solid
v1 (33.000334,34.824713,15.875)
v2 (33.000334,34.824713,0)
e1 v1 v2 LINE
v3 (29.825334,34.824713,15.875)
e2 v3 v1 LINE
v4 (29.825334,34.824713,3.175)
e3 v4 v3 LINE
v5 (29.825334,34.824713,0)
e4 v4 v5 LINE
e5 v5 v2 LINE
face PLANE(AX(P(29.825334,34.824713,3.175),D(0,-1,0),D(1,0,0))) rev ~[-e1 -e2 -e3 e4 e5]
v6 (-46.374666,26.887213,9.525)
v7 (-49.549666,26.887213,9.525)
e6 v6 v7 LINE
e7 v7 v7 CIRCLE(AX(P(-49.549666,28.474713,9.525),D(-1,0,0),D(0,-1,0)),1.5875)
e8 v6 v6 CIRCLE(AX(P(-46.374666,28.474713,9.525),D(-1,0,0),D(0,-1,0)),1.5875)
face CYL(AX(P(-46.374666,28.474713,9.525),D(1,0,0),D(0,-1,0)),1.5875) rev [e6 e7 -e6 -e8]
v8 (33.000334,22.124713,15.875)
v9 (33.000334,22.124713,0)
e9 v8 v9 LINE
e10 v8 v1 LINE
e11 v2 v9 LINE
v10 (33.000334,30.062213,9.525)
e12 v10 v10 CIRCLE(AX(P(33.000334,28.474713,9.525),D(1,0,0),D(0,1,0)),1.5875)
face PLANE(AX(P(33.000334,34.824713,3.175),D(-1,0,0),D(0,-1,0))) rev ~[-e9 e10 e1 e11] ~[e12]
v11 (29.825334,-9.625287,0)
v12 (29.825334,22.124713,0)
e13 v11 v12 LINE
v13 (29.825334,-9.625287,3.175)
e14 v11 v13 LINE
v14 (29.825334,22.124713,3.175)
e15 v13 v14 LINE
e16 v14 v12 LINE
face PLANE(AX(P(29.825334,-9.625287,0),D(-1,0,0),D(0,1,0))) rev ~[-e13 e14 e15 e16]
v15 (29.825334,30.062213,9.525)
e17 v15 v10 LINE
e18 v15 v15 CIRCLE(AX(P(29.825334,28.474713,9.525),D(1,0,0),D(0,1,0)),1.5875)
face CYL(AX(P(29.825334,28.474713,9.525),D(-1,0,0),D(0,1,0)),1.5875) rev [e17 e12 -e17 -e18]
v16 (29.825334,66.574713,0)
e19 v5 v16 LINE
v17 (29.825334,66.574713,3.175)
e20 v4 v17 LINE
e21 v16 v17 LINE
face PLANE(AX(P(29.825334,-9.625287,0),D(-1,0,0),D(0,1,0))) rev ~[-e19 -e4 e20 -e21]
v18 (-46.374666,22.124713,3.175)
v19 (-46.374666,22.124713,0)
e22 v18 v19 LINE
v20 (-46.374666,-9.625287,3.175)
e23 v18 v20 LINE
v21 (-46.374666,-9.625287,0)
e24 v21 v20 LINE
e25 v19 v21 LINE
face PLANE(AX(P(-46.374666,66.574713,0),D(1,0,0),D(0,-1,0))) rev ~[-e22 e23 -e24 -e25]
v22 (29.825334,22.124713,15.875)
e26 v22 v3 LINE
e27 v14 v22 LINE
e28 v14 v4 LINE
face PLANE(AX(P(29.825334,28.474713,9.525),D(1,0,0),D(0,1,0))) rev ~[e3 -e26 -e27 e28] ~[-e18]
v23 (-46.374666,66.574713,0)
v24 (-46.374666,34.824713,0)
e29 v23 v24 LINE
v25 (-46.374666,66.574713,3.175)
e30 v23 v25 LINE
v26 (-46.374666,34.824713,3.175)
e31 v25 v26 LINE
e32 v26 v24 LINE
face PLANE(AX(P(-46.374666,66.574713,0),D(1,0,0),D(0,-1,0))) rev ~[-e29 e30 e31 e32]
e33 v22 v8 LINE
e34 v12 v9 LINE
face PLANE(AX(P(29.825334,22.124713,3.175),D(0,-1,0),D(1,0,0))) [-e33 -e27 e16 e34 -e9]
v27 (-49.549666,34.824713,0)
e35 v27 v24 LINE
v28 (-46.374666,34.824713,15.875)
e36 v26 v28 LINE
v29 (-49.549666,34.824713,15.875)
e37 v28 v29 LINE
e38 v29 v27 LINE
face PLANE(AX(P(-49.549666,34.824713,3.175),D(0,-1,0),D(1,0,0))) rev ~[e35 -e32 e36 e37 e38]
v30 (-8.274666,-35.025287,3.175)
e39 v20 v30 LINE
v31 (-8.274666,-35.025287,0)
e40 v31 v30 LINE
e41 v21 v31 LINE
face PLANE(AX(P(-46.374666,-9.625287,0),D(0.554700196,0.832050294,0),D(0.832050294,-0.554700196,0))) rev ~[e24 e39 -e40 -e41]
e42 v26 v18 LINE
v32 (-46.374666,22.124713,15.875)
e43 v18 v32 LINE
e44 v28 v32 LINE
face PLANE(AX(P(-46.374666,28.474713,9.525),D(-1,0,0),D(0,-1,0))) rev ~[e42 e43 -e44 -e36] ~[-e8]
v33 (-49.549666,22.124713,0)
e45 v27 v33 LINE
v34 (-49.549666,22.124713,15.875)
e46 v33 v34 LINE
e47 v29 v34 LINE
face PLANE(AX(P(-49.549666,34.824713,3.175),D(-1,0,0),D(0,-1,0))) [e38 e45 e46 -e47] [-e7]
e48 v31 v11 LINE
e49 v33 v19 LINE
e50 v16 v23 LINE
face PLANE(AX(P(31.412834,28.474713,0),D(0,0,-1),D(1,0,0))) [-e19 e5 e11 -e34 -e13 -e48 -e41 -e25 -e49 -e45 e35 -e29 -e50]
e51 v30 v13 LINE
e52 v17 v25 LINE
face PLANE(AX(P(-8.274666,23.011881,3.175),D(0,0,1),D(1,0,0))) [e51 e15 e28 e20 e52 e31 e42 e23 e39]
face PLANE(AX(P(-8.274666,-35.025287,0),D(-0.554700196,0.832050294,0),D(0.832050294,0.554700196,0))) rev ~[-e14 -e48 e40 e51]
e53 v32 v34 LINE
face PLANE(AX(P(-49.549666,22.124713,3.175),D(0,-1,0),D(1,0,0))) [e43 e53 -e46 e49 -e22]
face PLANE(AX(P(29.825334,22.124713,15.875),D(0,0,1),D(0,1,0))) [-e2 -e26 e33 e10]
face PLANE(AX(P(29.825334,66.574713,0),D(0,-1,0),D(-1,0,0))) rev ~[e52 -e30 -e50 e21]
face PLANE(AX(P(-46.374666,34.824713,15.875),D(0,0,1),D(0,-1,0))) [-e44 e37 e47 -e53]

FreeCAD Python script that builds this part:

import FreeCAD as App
import Part
import Sketcher

V = App.Vector
Q = App.Units.Quantity


def add_polygon(sketch, points):
    """Adds a closed chain of lines whose ends are joined by coincident constraints."""
    first, n = sketch.GeometryCount, len(points)
    for a, b in zip(points, points[1:] + points[:1]):
        sketch.addGeometry(Part.LineSegment(App.Vector(*a, 0), App.Vector(*b, 0)), False)
    for i in range(n):
        sketch.addConstraint(Sketcher.Constraint("Coincident", first + i, 2, first + (i + 1) % n, 1))

doc = App.newDocument("Part")
body = doc.addObject("PartDesign::Body", "Body")

sketch1 = body.newObject("Sketcher::SketchObject", "Sketch")
sketch1.AttachmentSupport = (doc.getObject("XY_Plane"), [""])
sketch1.MapMode = "FlatFace"
add_polygon(sketch1, [(30, 67), (-46, 67), (-46, -10), (-8, -35), (30, -10)])
sketch1.addConstraint(Sketcher.Constraint("Horizontal", 0))
sketch1.addConstraint(Sketcher.Constraint("Vertical", 1))
sketch1.addConstraint(Sketcher.Constraint("Vertical", 4))
sketch1.addConstraint(Sketcher.Constraint("Horizontal", 1, 2, 3, 2))
sketch1.addConstraint(Sketcher.Constraint("Equal", 0, 1))
sketch1.addConstraint(Sketcher.Constraint("Equal", 2, 3))
sketch1.addConstraint(Sketcher.Constraint("DistanceX", 0, 2, 0, 1, Q("3 in")))
sketch1.addConstraint(Sketcher.Constraint("DistanceY", 2, 2, 1, 2, Q("1 in")))
sketch1.addConstraint(Sketcher.Constraint("DistanceX", 0, 2, -1, 1, 46.374666))
sketch1.addConstraint(Sketcher.Constraint("DistanceY", -1, 1, 0, 2, 66.574713))
pad1 = body.newObject("PartDesign::Pad", "Pad")
pad1.Profile = sketch1
pad1.Length = Q("0.125 in")
body2 = doc.addObject("PartDesign::Body", "Body001")

sketch2 = body2.newObject("Sketcher::SketchObject", "Sketch001")
sketch2.AttachmentSupport = (doc.getObject("YZ_Plane001"), [""])
sketch2.MapMode = "FlatFace"
sketch2.AttachmentOffset = App.Placement(V(0, 0, -46.374666), App.Rotation())
add_polygon(sketch2, [(34.8, 15.9), (34.8, 3.2), (22.1, 3.2), (22.1, 15.9)])
sketch2.addGeometry(Part.Circle(V(28.5, 9.5, 0), V(0, 0, 1), 1.6), False)
sketch2.addConstraint(Sketcher.Constraint("Vertical", 0))
sketch2.addConstraint(Sketcher.Constraint("Horizontal", 1))
sketch2.addConstraint(Sketcher.Constraint("Vertical", 2))
sketch2.addConstraint(Sketcher.Constraint("Horizontal", 3))
sketch2.addConstraint(Sketcher.Constraint("Equal", 3, 0))
sketch2.addConstraint(Sketcher.Constraint("Diameter", 4, Q("0.125 in")))
sketch2.addConstraint(Sketcher.Constraint("DistanceX", 1, 2, 1, 1, Q("0.5 in")))
sketch2.addConstraint(Sketcher.Constraint("DistanceX", 4, 3, 0, 2, Q("0.25 in")))
sketch2.addConstraint(Sketcher.Constraint("DistanceY", 0, 2, 4, 3, Q("0.25 in")))
sketch2.addConstraint(Sketcher.Constraint("DistanceY", -1, 1, 4, 3, Q("0.375 in")))
sketch2.addConstraint(Sketcher.Constraint("DistanceX", -1, 1, 4, 3, 28.474713))
pad2 = body2.newObject("PartDesign::Pad", "Pad001")
pad2.Profile = sketch2
pad2.Length = Q("0.125 in")
pad2.Reversed = True
body.AllowCompound = True
doc.recompute()

boolean = body.newObject("PartDesign::Boolean", "Boolean")
boolean.Type = "Fuse"
boolean.addObjects([body2])

sketch3 = body.newObject("Sketcher::SketchObject", "Sketch002")
sketch3.AttachmentSupport = (doc.getObject("XY_Plane"), [""])
sketch3.MapMode = "FlatFace"
sketch3.AttachmentOffset = App.Placement(V(0, 0, 0.125 * 25.4), App.Rotation())
add_polygon(sketch3, [(-49.5, 22.1), (-49.5, 34.8), (-46.4, 34.8), (-46.4, 22.1)])
sketch3.addConstraint(Sketcher.Constraint("Vertical", 0))
sketch3.addConstraint(Sketcher.Constraint("Horizontal", 1))
sketch3.addConstraint(Sketcher.Constraint("Vertical", 2))
sketch3.addConstraint(Sketcher.Constraint("Horizontal", 3))
sketch3.addConstraint(Sketcher.Constraint("DistanceY", 0, 1, 0, 2, Q("0.5 in")))
sketch3.addConstraint(Sketcher.Constraint("DistanceX", 1, 1, 1, 2, Q("0.125 in")))
sketch3.addConstraint(Sketcher.Constraint("DistanceX", 0, 2, -1, 1, 49.549666))
sketch3.addConstraint(Sketcher.Constraint("DistanceY", -1, 1, 0, 2, 34.824713))
pad3 = body.newObject("PartDesign::Pad", "Pad002")
pad3.Profile = sketch3
pad3.Length = Q("0.125 in")
pad3.Reversed = True
body3 = doc.addObject("PartDesign::Body", "Body002")

sketch4 = body3.newObject("Sketcher::SketchObject", "Sketch003")
sketch4.AttachmentSupport = (doc.getObject("YZ_Plane002"), [""])
sketch4.MapMode = "FlatFace"
sketch4.AttachmentOffset = App.Placement(V(0, 0, 29.825334), App.Rotation())
add_polygon(sketch4, [(22.1, 15.9), (22.1, 3.2), (34.8, 3.2), (34.8, 15.9)])
sketch4.addGeometry(Part.Circle(V(28.5, 9.5, 0), V(0, 0, 1), 1.6), False)
sketch4.addConstraint(Sketcher.Constraint("Vertical", 0))
sketch4.addConstraint(Sketcher.Constraint("Horizontal", 1))
sketch4.addConstraint(Sketcher.Constraint("Vertical", 2))
sketch4.addConstraint(Sketcher.Constraint("Horizontal", 3))
sketch4.addConstraint(Sketcher.Constraint("Equal", 3, 0))
sketch4.addConstraint(Sketcher.Constraint("Diameter", 4, Q("0.125 in")))
sketch4.addConstraint(Sketcher.Constraint("DistanceX", 1, 1, 1, 2, Q("0.5 in")))
sketch4.addConstraint(Sketcher.Constraint("DistanceX", 0, 2, 4, 3, Q("0.25 in")))
sketch4.addConstraint(Sketcher.Constraint("DistanceY", 0, 2, 4, 3, Q("0.25 in")))
sketch4.addConstraint(Sketcher.Constraint("DistanceY", -1, 1, 4, 3, Q("0.375 in")))
sketch4.addConstraint(Sketcher.Constraint("DistanceX", -1, 1, 4, 3, 28.474713))
pad4 = body3.newObject("PartDesign::Pad", "Pad003")
pad4.Profile = sketch4
pad4.Length = Q("0.125 in")
body.AllowCompound = True
doc.recompute()

boolean2 = body.newObject("PartDesign::Boolean", "Boolean001")
boolean2.Type = "Fuse"
boolean2.addObjects([body3])

sketch5 = body.newObject("Sketcher::SketchObject", "Sketch004")
sketch5.AttachmentSupport = (doc.getObject("XY_Plane"), [""])
sketch5.MapMode = "FlatFace"
sketch5.AttachmentOffset = App.Placement(V(0, 0, 0.125 * 25.4), App.Rotation())
add_polygon(sketch5, [(29.8, 22.1), (29.8, 34.8), (33, 34.8), (33, 22.1)])
sketch5.addConstraint(Sketcher.Constraint("Vertical", 0))
sketch5.addConstraint(Sketcher.Constraint("Horizontal", 1))
sketch5.addConstraint(Sketcher.Constraint("Vertical", 2))
sketch5.addConstraint(Sketcher.Constraint("Horizontal", 3))
sketch5.addConstraint(Sketcher.Constraint("DistanceY", 0, 1, 0, 2, Q("0.5 in")))
sketch5.addConstraint(Sketcher.Constraint("DistanceX", 1, 1, 1, 2, Q("0.125 in")))
sketch5.addConstraint(Sketcher.Constraint("DistanceX", -1, 1, 0, 2, 29.825334))
sketch5.addConstraint(Sketcher.Constraint("DistanceY", -1, 1, 0, 2, 34.824713))
pad5 = body.newObject("PartDesign::Pad", "Pad004")
pad5.Profile = sketch5
pad5.Length = Q("0.125 in")
pad5.Reversed = True

doc.recompute()
